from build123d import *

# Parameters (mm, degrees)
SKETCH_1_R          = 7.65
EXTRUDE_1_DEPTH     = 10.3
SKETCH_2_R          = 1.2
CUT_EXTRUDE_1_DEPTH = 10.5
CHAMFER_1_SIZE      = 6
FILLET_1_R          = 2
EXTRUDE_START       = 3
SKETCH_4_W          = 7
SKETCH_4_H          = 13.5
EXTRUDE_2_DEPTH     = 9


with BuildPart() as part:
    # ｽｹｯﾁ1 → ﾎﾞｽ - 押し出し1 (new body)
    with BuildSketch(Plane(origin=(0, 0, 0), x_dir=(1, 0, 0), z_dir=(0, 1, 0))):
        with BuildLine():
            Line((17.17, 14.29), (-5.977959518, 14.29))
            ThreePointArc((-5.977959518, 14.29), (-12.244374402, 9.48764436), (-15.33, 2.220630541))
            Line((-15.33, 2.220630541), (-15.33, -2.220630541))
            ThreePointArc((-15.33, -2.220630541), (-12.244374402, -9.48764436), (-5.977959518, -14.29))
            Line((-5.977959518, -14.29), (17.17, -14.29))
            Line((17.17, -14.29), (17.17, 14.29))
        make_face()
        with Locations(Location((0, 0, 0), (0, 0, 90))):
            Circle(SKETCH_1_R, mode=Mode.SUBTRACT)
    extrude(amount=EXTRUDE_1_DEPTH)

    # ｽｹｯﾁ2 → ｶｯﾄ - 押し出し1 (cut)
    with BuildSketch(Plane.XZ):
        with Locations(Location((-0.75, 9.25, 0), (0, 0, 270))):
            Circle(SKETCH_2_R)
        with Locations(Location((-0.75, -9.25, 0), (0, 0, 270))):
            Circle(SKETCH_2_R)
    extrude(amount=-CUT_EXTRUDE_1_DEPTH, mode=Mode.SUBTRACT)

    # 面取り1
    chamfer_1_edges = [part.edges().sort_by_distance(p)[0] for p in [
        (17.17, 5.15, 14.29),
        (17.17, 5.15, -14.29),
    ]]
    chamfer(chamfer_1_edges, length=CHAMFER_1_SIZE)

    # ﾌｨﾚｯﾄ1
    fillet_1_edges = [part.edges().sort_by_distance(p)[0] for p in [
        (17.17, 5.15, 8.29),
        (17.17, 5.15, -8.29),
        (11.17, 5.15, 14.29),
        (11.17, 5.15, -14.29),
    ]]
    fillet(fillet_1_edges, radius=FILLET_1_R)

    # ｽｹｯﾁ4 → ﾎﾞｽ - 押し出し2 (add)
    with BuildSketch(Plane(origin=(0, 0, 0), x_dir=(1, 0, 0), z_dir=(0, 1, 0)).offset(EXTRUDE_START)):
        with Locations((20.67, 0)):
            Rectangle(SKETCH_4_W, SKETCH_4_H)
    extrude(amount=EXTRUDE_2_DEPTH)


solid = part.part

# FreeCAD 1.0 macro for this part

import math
import FreeCAD as App
import Part
import Sketcher


def edges_at(feature, points):
    """Names of the edges that pass closest to the given points."""
    edges = feature.Shape.Edges
    near = lambda p: min(range(len(edges)), key=lambda i: edges[i].distToShape(Part.Vertex(*p))[0])
    return sorted({f"Edge{near(p) + 1}" for p in points})


def add_polygon(sketch, points):
    """Adds a closed chain of lines whose ends are joined by coincident constraints."""
    first, n = sketch.GeometryCount, len(points)
    for a, b in zip(points, points[1:] + points[:1]):
        sketch.addGeometry(Part.LineSegment(App.Vector(*a, 0), App.Vector(*b, 0)), False)
    for i in range(n):
        sketch.addConstraint(Sketcher.Constraint("Coincident", first + i, 2, first + (i + 1) % n, 1))

doc = App.newDocument("Part")
body = doc.addObject("PartDesign::Body", "Body")

sketch1 = body.newObject("Sketcher::SketchObject", "Sketch")
sketch1.AttachmentSupport = (doc.getObject("XZ_Plane"), [""])
sketch1.MapMode = "FlatFace"
sketch1.addGeometry([
    Part.LineSegment(App.Vector(17.2, -14.3, 0), App.Vector(-6, -14.3, 0)),
    Part.ArcOfCircle(Part.Circle(App.Vector(0, 0, 0), App.Vector(0, 0, 1), 15.5), math.radians(-172), math.radians(-113)),
    Part.LineSegment(App.Vector(-15.3, -2.2, 0), App.Vector(-15.3, 2.2, 0)),
    Part.ArcOfCircle(Part.Circle(App.Vector(0, 0, 0), App.Vector(0, 0, 1), 15.5), math.radians(113), math.radians(172)),
    Part.LineSegment(App.Vector(-6, 14.3, 0), App.Vector(17.2, 14.3, 0)),
    Part.LineSegment(App.Vector(17.2, 14.3, 0), App.Vector(17.2, -14.3, 0)),
    Part.Circle(App.Vector(0, 0, 0), App.Vector(0, 0, 1), 7.7),
], False)
sketch1.addConstraint([
    Sketcher.Constraint("Coincident", 0, 2, 1, 2),
    Sketcher.Constraint("Coincident", 1, 1, 2, 1),
    Sketcher.Constraint("Coincident", 2, 2, 3, 2),
    Sketcher.Constraint("Coincident", 3, 1, 4, 1),
    Sketcher.Constraint("Coincident", 4, 2, 5, 1),
    Sketcher.Constraint("Coincident", 5, 2, 0, 1),
    Sketcher.Constraint("Horizontal", 0),
    Sketcher.Constraint("Vertical", 2),
    Sketcher.Constraint("Horizontal", 4),
    Sketcher.Constraint("Vertical", 5),
    Sketcher.Constraint("Coincident", 1, 3, -1, 1),
    Sketcher.Constraint("Coincident", 3, 3, -1, 1),
    Sketcher.Constraint("Coincident", 6, 3, -1, 1),
    Sketcher.Constraint("Equal", 1, 3),
    Sketcher.Constraint("Vertical", 0, 2, 3, 1),
    Sketcher.Constraint("Diameter", 6, 15.3),
    Sketcher.Constraint("Radius", 1, 15.49),
    Sketcher.Constraint("DistanceY", 5, 2, 5, 1, 28.58),
    Sketcher.Constraint("DistanceX", 2, 2, 4, 2, 32.5),
    Sketcher.Constraint("DistanceX", 1, 1, -1, 1, 15.33),
])
pad1 = body.newObject("PartDesign::Pad", "Pad")
pad1.Profile = sketch1
pad1.Length = 10.3
pad1.Reversed = True

sketch2 = body.newObject("Sketcher::SketchObject", "Sketch001")
sketch2.AttachmentSupport = (doc.getObject("XZ_Plane"), [""])
sketch2.MapMode = "FlatFace"
sketch2.addGeometry([
    Part.Circle(App.Vector(-0.8, 9.2, 0), App.Vector(0, 0, 1), 1.2),
    Part.Circle(App.Vector(-0.8, -9.2, 0), App.Vector(0, 0, 1), 1.2),
], False)
sketch2.addConstraint([
    Sketcher.Constraint("Equal", 0, 1),
    Sketcher.Constraint("Symmetric", 0, 3, 1, 3, -1),
    Sketcher.Constraint("Diameter", 0, 2.4),
    Sketcher.Constraint("DistanceY", 1, 3, 0, 3, 18.5),
    Sketcher.Constraint("DistanceX", 0, 3, -1, 1, 0.75),
])
pocket1 = body.newObject("PartDesign::Pocket", "Pocket")
pocket1.Profile = sketch2
pocket1.Length = 10.5
doc.recompute()

chamfer = body.newObject("PartDesign::Chamfer", "Chamfer")
chamfer.Base = (pocket1, edges_at(pocket1, [(17.17, 5.15, 14.29), (17.17, 5.15, -14.29)]))
chamfer.Size = 6
doc.recompute()

fillet = body.newObject("PartDesign::Fillet", "Fillet")
fillet.Base = (chamfer, edges_at(chamfer, [
    (17.17, 5.15, 8.29),
    (17.17, 5.15, -8.29),
    (11.17, 5.15, 14.29),
    (11.17, 5.15, -14.29),
]))
fillet.Radius = 2

sketch3 = body.newObject("Sketcher::SketchObject", "Sketch002")
sketch3.AttachmentSupport = (doc.getObject("XZ_Plane"), [""])
sketch3.MapMode = "FlatFace"
sketch3.AttachmentOffset = App.Placement(App.Vector(0, 0, -3), App.Rotation())
add_polygon(sketch3, [(17, -7), (17, 7), (24, 7), (24, -7)])
sketch3.addConstraint([
    Sketcher.Constraint("Vertical", 0),
    Sketcher.Constraint("Horizontal", 1),
    Sketcher.Constraint("Vertical", 2),
    Sketcher.Constraint("Horizontal", 3),
    Sketcher.Constraint("DistanceX", 1, 1, 1, 2, 7.0),
    Sketcher.Constraint("DistanceY", 0, 1, 0, 2, 13.5),
    Sketcher.Constraint("DistanceX", -1, 1, 0, 2, 17.17),
    Sketcher.Constraint("DistanceY", -1, 1, 0, 2, 6.75),
])
pad2 = body.newObject("PartDesign::Pad", "Pad001")
pad2.Profile = sketch3
pad2.Length = 9
pad2.Reversed = True

doc.recompute()
